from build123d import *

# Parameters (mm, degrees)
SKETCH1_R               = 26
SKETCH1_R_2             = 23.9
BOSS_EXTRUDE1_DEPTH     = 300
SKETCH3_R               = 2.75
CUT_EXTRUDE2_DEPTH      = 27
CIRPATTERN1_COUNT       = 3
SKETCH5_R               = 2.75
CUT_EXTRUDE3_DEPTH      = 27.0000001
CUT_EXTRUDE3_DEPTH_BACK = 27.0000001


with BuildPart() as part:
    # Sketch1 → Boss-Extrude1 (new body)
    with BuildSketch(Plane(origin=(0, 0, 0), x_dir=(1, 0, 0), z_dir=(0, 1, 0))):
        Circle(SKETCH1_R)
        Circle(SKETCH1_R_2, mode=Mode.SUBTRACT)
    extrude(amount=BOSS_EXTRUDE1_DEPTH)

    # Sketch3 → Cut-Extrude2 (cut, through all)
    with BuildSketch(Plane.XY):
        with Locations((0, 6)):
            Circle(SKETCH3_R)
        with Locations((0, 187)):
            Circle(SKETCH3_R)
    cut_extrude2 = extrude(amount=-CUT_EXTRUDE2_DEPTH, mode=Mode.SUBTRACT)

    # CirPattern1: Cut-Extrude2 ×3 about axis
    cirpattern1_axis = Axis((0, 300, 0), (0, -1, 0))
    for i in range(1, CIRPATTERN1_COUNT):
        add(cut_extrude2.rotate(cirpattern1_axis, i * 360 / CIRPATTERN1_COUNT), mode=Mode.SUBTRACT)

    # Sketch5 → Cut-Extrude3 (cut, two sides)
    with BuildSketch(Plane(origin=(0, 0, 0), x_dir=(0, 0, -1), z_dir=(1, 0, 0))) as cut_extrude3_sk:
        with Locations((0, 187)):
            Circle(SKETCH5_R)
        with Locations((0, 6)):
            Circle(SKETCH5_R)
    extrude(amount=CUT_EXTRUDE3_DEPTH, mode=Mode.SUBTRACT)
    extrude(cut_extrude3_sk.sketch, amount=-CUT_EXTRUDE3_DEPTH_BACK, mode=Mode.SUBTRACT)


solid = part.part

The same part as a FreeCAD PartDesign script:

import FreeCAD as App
import Part
import Sketcher

doc = App.newDocument("Part")
params = doc.addObject("Spreadsheet::Sheet", "Params")
for row, (alias, value) in enumerate([
    ("sketch1_diameter", "52 mm"),
    ("sketch1_diameter2", "47.8 mm"),
    ("pad1_length", "300 mm"),
    ("sketch2_diameter", "5.5 mm"),
    ("sketch3_diameter", "5.5 mm"),
], start=1):
    params.set(f"A{row}", alias)
    params.set(f"B{row}", "=" + value)
    params.setAlias(f"B{row}", alias)

body = doc.addObject("PartDesign::Body", "Body")

# Sketch on XZ plane
sketch1 = body.newObject("Sketcher::SketchObject", "Sketch")
sketch1.AttachmentSupport = (doc.getObject("XZ_Plane"), [""])
sketch1.MapMode = "FlatFace"
sketch1.addGeometry([
    Part.Circle(App.Vector(0, 0, 0), App.Vector(0, 0, 1), 26),
    Part.Circle(App.Vector(0, 0, 0), App.Vector(0, 0, 1), 24),
], False)
sketch1.addConstraint([
    Sketcher.Constraint("Coincident", 0, 3, -1, 1),
    Sketcher.Constraint("Coincident", 1, 3, -1, 1),
    Sketcher.Constraint("Diameter", 0, 52.0),
    Sketcher.Constraint("Diameter", 1, 47.8),
])
sketch1.setExpression("Constraints[2]", "Params.sketch1_diameter")
sketch1.setExpression("Constraints[3]", "Params.sketch1_diameter2")
pad1 = body.newObject("PartDesign::Pad", "Pad")
pad1.Profile = sketch1
pad1.setExpression("Length", "Params.pad1_length")
pad1.Reversed = True

# Sketch on XY plane
sketch2 = body.newObject("Sketcher::SketchObject", "Sketch001")
sketch2.AttachmentSupport = (doc.getObject("XY_Plane"), [""])
sketch2.MapMode = "FlatFace"
sketch2.addGeometry([
    Part.Circle(App.Vector(0, 6, 0), App.Vector(0, 0, 1), 2.8),
    Part.Circle(App.Vector(0, 187, 0), App.Vector(0, 0, 1), 2.8),
], False)
sketch2.addConstraint([
    Sketcher.Constraint("Equal", 0, 1),
    Sketcher.Constraint("PointOnObject", 0, 3, -2),
    Sketcher.Constraint("PointOnObject", 1, 3, -2),
    Sketcher.Constraint("Diameter", 0, 5.5),
    Sketcher.Constraint("DistanceY", -1, 1, 0, 3, 6.0),
    Sketcher.Constraint("DistanceY", -1, 1, 1, 3, 187.0),
])
sketch2.setExpression("Constraints[3]", "Params.sketch2_diameter")
pocket1 = body.newObject("PartDesign::Pocket", "Pocket")
pocket1.Profile = sketch2
pocket1.Type = "ThroughAll"
doc.recompute()

polarpattern = body.newObject("PartDesign::PolarPattern", "PolarPattern")
polarpattern.Originals = [pocket1]
polarpattern.Axis = (doc.getObject("Y_Axis"), [""])
polarpattern.Angle = 360
polarpattern.Occurrences = 3
body.Tip = polarpattern

# Sketch on YZ plane
sketch3 = body.newObject("Sketcher::SketchObject", "Sketch002")
sketch3.AttachmentSupport = (doc.getObject("YZ_Plane"), [""])
sketch3.MapMode = "FlatFace"
sketch3.addGeometry([
    Part.Circle(App.Vector(187, 0, 0), App.Vector(0, 0, 1), 2.8),
    Part.Circle(App.Vector(6, 0, 0), App.Vector(0, 0, 1), 2.8),
], False)
sketch3.addConstraint([
    Sketcher.Constraint("Equal", 0, 1),
    Sketcher.Constraint("PointOnObject", 0, 3, -1),
    Sketcher.Constraint("PointOnObject", 1, 3, -1),
    Sketcher.Constraint("Diameter", 0, 5.5),
    Sketcher.Constraint("DistanceX", -1, 1, 0, 3, 187.0),
    Sketcher.Constraint("DistanceX", -1, 1, 1, 3, 6.0),
])
sketch3.setExpression("Constraints[3]", "Params.sketch3_diameter")
pocket2 = body.newObject("PartDesign::Pocket", "Pocket001")
pocket2.Profile = sketch3
pocket2.Type = "ThroughAll"
pocket2.Midplane = True

doc.recompute()
